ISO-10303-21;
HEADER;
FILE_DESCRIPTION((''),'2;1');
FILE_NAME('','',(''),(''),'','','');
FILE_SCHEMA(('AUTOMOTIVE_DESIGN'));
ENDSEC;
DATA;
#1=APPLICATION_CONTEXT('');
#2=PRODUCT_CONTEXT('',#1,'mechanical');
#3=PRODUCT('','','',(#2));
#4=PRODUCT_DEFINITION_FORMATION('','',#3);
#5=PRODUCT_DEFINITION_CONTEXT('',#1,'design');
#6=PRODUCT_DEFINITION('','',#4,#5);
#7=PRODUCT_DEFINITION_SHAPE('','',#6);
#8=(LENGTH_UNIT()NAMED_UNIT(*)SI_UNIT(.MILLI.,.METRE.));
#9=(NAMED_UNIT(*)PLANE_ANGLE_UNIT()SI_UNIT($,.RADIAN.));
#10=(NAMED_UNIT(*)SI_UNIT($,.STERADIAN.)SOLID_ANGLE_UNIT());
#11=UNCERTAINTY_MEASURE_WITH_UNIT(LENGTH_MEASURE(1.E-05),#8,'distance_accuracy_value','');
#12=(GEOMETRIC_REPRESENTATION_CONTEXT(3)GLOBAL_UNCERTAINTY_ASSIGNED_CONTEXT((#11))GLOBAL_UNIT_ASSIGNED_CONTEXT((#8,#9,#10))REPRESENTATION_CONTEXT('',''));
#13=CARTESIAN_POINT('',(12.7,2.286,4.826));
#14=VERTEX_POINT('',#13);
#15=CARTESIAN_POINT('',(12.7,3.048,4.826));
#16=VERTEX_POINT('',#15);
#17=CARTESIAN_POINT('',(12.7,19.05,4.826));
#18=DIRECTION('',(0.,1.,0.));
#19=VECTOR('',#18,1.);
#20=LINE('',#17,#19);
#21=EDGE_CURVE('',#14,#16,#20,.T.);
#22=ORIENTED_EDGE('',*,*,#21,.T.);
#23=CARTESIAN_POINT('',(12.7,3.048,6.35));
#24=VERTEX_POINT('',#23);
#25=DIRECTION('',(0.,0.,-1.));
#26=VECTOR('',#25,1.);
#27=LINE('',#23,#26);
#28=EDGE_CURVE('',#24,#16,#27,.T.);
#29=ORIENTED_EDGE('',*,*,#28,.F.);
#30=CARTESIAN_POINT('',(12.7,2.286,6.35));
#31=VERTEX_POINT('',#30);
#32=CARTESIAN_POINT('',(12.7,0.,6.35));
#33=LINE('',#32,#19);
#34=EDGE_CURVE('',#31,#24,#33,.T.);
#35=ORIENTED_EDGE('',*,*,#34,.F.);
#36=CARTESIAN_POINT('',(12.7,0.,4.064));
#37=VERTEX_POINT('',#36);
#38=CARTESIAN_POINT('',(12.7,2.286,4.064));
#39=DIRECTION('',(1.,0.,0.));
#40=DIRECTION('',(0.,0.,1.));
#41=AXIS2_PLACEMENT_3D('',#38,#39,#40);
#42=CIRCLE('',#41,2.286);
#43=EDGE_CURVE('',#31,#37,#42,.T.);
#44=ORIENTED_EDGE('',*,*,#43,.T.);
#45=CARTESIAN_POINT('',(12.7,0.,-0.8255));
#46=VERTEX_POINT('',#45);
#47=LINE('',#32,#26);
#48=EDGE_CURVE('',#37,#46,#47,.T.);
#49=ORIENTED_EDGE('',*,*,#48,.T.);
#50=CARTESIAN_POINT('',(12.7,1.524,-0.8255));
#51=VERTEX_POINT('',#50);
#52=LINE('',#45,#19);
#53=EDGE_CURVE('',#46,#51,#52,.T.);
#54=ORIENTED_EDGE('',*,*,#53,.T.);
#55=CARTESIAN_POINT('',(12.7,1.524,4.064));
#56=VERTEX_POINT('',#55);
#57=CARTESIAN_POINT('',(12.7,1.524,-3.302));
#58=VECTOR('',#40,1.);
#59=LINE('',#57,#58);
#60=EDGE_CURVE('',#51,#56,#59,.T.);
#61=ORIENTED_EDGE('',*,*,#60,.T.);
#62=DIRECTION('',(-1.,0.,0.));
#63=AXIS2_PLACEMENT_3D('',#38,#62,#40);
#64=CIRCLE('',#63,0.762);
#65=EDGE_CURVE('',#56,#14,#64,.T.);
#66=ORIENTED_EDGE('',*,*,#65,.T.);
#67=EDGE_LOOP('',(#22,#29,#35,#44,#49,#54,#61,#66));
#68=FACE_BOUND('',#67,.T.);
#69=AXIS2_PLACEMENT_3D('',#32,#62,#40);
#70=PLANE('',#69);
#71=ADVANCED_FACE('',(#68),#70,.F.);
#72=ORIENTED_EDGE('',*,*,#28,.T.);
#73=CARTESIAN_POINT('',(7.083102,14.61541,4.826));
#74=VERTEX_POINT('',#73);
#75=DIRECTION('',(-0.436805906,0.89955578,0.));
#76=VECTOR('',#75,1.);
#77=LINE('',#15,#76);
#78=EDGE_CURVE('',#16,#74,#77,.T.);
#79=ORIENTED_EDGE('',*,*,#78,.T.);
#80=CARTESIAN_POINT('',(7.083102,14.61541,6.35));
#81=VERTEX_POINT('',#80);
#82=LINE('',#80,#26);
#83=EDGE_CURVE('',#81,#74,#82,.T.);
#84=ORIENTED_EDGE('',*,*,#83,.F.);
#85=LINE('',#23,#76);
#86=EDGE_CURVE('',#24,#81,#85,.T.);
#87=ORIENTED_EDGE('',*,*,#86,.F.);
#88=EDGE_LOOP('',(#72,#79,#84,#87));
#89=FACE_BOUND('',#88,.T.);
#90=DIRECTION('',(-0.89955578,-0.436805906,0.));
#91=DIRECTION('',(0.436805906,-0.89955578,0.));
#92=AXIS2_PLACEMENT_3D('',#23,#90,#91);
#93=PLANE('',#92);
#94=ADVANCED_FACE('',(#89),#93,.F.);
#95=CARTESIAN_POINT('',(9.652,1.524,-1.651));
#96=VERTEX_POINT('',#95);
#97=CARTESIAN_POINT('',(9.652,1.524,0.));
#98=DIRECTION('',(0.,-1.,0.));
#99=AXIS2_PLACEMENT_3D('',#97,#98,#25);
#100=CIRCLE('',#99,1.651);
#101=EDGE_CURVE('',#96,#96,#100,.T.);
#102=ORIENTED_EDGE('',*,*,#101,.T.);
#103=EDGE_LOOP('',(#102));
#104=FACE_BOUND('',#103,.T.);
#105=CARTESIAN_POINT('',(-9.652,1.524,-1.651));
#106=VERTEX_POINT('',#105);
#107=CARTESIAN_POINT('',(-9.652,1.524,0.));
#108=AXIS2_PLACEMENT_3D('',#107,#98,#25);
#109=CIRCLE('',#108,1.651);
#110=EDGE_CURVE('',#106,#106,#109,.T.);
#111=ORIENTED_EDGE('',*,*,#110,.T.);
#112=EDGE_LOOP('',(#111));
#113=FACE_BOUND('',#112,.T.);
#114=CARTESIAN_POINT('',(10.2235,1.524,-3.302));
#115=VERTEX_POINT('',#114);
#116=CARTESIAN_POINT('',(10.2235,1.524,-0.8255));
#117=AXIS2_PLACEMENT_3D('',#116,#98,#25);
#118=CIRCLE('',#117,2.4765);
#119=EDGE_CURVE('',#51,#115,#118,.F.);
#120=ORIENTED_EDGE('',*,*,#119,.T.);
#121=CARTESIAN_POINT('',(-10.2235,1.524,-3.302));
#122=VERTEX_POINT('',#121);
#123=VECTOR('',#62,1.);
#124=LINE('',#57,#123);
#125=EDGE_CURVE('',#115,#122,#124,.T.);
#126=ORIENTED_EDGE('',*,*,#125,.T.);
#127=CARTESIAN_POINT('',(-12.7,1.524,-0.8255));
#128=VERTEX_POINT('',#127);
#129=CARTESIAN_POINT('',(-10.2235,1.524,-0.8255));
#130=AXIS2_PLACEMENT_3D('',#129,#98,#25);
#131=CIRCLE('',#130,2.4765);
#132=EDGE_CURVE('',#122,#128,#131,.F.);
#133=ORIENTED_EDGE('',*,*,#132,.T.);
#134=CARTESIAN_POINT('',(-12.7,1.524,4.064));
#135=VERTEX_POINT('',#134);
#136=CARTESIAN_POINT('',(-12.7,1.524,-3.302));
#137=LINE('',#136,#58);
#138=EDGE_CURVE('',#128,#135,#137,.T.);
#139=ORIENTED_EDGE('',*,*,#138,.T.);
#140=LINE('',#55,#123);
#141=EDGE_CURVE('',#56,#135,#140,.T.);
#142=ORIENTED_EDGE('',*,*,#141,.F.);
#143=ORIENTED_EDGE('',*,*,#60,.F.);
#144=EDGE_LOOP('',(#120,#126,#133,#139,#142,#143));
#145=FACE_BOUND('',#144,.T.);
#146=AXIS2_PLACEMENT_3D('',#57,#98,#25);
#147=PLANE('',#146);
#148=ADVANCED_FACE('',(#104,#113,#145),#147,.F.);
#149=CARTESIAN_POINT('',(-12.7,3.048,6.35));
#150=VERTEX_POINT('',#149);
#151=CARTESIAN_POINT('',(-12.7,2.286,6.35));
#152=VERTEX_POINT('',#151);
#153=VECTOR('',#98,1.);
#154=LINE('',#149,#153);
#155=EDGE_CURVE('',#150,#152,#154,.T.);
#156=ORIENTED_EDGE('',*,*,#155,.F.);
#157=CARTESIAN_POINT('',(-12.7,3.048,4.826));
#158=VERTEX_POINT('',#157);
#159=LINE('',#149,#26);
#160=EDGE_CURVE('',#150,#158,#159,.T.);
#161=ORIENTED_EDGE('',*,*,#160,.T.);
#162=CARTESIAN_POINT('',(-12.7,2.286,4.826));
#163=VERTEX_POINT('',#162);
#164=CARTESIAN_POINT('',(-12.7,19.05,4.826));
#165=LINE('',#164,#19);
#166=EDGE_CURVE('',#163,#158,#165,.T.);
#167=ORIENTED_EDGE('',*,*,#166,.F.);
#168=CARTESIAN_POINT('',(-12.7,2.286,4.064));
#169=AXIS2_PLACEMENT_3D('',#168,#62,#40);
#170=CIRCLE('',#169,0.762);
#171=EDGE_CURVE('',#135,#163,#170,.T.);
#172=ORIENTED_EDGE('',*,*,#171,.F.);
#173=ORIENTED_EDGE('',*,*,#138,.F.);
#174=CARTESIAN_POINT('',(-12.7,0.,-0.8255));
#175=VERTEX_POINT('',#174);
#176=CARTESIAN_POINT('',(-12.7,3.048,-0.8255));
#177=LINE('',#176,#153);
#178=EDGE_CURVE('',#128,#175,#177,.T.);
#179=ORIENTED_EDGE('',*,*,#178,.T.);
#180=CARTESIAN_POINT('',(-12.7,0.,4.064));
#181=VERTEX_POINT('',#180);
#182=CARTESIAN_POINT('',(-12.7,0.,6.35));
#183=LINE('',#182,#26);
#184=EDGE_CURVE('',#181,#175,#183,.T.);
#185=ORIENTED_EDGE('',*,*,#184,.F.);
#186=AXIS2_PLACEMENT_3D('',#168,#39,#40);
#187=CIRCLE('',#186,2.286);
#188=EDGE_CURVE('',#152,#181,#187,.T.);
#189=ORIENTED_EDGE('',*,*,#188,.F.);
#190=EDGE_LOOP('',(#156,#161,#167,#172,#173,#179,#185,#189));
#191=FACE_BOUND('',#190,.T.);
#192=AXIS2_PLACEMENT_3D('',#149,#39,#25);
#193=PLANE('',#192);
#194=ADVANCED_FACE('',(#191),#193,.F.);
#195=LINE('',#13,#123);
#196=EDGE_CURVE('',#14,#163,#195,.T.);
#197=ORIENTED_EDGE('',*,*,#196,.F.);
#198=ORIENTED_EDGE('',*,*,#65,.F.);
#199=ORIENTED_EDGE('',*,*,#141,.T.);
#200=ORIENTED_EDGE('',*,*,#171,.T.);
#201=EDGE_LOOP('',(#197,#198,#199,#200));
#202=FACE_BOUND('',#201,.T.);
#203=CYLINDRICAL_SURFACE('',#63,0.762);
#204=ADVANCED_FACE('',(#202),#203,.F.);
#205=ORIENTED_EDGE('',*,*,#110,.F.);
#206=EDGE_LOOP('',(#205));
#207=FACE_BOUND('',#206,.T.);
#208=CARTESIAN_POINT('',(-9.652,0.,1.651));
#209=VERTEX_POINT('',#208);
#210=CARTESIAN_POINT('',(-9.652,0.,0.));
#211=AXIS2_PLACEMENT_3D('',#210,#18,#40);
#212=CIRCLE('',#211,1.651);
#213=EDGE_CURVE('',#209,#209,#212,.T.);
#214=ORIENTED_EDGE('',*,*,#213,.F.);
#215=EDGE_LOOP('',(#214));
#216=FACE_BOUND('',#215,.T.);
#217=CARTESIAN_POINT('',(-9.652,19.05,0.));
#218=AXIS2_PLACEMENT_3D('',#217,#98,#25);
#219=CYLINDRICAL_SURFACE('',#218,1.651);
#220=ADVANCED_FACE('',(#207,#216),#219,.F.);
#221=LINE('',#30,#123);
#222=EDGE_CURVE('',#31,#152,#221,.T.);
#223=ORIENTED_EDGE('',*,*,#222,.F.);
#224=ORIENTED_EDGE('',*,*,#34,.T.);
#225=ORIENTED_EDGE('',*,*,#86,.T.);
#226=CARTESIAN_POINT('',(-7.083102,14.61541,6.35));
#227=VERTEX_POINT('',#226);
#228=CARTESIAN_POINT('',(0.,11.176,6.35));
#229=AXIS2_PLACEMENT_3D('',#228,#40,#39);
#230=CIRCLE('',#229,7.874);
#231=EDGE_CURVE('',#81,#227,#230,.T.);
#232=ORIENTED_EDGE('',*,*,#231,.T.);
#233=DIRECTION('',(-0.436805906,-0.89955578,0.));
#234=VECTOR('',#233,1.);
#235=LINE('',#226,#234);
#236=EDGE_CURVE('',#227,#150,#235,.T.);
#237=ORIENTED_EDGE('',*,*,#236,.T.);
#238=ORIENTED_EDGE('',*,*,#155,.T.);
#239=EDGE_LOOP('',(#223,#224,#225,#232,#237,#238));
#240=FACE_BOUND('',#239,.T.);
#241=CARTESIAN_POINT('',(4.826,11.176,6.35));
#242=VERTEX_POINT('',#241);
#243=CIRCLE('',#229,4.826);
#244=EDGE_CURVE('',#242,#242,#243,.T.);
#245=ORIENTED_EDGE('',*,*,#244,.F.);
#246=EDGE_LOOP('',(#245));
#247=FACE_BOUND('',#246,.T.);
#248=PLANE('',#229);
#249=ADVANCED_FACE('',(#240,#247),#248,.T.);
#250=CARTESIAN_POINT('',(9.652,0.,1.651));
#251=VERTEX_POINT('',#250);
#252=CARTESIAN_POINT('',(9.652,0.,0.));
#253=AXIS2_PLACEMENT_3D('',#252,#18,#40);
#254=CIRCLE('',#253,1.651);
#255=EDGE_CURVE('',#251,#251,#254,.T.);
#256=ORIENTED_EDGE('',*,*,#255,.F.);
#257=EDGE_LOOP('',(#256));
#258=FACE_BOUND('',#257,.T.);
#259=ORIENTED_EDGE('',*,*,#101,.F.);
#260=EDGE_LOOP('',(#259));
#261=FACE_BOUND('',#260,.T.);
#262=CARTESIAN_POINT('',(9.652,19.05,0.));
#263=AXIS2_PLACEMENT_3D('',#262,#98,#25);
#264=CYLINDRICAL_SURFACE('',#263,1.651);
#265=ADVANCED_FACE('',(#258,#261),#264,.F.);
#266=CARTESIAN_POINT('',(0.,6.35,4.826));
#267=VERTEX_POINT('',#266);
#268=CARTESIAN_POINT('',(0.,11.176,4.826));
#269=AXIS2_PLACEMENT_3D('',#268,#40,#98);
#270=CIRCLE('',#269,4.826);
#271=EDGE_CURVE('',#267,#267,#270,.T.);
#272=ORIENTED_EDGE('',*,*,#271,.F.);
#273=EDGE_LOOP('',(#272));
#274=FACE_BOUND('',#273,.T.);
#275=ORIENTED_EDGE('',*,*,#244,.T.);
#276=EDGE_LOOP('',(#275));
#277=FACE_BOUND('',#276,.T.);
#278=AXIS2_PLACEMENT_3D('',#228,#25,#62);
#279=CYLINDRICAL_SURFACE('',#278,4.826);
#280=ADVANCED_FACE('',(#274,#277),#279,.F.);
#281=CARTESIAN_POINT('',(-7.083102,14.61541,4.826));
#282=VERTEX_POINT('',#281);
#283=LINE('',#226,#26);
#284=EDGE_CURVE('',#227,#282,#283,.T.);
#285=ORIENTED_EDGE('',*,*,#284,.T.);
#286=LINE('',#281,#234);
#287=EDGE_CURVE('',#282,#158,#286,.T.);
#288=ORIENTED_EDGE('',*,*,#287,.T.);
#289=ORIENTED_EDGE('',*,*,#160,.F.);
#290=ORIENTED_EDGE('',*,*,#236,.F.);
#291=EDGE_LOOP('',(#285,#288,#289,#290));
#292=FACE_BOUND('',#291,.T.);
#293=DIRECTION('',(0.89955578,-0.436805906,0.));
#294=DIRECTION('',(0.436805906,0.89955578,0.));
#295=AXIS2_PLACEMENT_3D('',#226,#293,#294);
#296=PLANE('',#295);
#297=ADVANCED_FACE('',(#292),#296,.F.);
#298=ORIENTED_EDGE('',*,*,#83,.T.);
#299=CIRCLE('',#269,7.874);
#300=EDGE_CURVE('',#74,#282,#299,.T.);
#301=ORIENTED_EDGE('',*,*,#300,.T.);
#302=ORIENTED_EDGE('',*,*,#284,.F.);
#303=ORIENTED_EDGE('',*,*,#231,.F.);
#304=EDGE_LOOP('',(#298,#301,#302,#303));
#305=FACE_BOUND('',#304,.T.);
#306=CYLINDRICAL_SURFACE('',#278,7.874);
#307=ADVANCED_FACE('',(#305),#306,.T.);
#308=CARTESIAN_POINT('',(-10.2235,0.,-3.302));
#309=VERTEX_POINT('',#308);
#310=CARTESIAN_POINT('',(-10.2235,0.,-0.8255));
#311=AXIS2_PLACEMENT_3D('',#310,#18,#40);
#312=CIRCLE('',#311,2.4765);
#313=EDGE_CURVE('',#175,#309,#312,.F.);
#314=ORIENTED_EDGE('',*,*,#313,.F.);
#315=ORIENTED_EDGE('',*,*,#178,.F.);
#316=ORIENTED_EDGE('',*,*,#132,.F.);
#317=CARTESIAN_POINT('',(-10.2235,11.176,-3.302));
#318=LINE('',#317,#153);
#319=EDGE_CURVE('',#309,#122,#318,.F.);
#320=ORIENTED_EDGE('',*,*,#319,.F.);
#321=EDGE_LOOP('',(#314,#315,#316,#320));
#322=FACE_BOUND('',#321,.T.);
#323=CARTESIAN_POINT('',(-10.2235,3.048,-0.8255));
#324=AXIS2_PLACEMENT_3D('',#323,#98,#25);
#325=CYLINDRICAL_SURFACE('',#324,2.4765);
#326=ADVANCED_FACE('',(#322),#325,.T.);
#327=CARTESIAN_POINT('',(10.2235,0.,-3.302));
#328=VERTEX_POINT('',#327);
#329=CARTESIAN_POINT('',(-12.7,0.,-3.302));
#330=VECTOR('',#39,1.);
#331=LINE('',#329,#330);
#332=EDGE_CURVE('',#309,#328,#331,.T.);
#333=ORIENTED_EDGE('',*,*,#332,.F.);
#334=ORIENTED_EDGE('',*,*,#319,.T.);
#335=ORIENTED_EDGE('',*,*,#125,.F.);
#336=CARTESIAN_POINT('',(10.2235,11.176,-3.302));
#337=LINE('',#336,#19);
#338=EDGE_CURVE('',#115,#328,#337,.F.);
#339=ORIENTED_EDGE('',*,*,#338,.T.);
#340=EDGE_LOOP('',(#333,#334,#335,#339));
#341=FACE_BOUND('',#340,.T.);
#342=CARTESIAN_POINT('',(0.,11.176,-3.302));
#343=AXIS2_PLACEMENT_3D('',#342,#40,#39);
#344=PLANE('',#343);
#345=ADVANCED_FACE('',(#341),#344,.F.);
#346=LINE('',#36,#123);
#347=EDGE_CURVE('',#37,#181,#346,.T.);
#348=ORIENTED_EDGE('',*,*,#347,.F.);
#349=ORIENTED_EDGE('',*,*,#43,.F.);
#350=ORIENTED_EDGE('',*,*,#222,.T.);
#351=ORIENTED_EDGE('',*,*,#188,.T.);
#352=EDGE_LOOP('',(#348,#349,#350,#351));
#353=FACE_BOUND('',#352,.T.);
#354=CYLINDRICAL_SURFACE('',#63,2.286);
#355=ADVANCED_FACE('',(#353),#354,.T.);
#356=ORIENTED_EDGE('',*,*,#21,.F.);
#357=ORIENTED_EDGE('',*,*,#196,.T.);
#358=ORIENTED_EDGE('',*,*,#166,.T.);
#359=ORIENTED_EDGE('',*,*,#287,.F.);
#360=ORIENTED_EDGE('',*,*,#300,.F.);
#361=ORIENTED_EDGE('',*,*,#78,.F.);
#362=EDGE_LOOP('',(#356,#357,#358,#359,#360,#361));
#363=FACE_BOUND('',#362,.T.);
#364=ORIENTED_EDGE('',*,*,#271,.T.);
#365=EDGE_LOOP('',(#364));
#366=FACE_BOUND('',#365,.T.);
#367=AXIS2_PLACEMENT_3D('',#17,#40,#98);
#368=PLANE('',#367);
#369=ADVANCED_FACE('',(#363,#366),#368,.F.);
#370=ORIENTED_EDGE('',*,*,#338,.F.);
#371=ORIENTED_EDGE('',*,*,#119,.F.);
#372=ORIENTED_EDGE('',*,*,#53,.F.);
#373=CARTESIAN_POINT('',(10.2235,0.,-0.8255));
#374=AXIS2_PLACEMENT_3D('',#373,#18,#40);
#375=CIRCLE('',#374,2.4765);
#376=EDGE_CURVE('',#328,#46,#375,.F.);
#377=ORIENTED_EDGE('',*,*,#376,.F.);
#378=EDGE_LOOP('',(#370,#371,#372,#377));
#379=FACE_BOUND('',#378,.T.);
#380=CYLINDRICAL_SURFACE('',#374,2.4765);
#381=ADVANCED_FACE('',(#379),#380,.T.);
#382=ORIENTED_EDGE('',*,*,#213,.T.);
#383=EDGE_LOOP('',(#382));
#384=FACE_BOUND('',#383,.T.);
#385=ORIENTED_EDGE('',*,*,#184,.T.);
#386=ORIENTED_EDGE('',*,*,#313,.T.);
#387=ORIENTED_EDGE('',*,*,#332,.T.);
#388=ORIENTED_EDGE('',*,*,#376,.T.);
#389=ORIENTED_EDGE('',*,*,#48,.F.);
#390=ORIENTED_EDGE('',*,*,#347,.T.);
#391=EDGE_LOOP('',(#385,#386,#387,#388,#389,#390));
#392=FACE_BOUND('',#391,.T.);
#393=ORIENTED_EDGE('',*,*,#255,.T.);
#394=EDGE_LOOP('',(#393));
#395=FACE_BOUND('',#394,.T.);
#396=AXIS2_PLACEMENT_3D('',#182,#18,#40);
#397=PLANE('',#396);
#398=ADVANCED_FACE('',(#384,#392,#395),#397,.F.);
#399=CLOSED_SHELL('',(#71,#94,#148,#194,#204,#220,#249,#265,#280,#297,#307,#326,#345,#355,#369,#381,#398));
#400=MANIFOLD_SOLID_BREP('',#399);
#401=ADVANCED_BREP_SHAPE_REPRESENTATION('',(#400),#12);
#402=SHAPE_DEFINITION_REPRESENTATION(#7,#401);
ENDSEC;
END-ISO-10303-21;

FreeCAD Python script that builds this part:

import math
import FreeCAD as App
import Part
import Sketcher
Q = App.Units.Quantity


def edges_at(feature, points):
    """Names of the edges that pass closest to the given points."""
    edges = feature.Shape.Edges
    near = lambda p: min(range(len(edges)), key=lambda i: edges[i].distToShape(Part.Vertex(*p))[0])
    return sorted({f"Edge{near(p) + 1}" for p in points})

doc = App.newDocument("Part")
params = doc.addObject("Spreadsheet::Sheet", "Params")
for row, (alias, value) in enumerate([
    ("sketch1_diameter", "0.38 in"),
    ("sketch1_width", "1 in"),
    ("sketch1_radius", "0.31 in"),
    ("sketch1_height", "0.12 in"),
    ("pad1_length", "0.25 in"),
    ("pad1_length2", "0.13 in"),
    ("sketch2_diameter", "0.13 in"),
    ("sketch3_radius", "0.03 in"),
    ("sketch3_radius2", "0.09 in"),
    ("sketch3_width", "0.69 in"),
    ("sketch3_height", "0.32 in"),
    ("fillet_radius", "0.0975 in"),
], start=1):
    params.set(f"A{row}", alias)
    params.set(f"B{row}", "=" + value)
    params.setAlias(f"B{row}", alias)

body = doc.addObject("PartDesign::Body", "Body")

# Sketch on XY plane
sketch1 = body.newObject("Sketcher::SketchObject", "Sketch")
sketch1.AttachmentSupport = (doc.getObject("XY_Plane"), [""])
sketch1.MapMode = "FlatFace"
sketch1.addGeometry([
    Part.LineSegment(App.Vector(-12.7, 0, 0), App.Vector(12.7, 0, 0)),  # 0
    Part.LineSegment(App.Vector(12.7, 0, 0), App.Vector(12.7, 3, 0)),  # 1
    Part.LineSegment(App.Vector(12.7, 3, 0), App.Vector(7.1, 14.6, 0)),  # 2
    Part.ArcOfCircle(Part.Circle(App.Vector(0, 11.2, 0), App.Vector(0, 0, 1), 7.9), math.radians(26), math.radians(154)),  # 3
    Part.LineSegment(App.Vector(-7.1, 14.6, 0), App.Vector(-12.7, 3, 0)),  # 4
    Part.LineSegment(App.Vector(-12.7, 3, 0), App.Vector(-12.7, 0, 0)),  # 5
    Part.Circle(App.Vector(0, 11.2, 0), App.Vector(0, 0, 1), 4.8),  # 6
], False)
sketch1.addConstraint([
    Sketcher.Constraint("Coincident", 0, 2, 1, 1),
    Sketcher.Constraint("Coincident", 1, 2, 2, 1),
    Sketcher.Constraint("Tangent", 2, 2, 3, 1),
    Sketcher.Constraint("Tangent", 3, 2, 4, 1),
    Sketcher.Constraint("Coincident", 4, 2, 5, 1),
    Sketcher.Constraint("Coincident", 5, 2, 0, 1),
    Sketcher.Constraint("Horizontal", 0),
    Sketcher.Constraint("Vertical", 1),
    Sketcher.Constraint("Vertical", 5),
    Sketcher.Constraint("Coincident", 6, 3, 3, 3),
    Sketcher.Constraint("Symmetric", 0, 2, 5, 2, -1, 1),
    Sketcher.Constraint("Symmetric", 2, 2, 3, 2, -2),
    Sketcher.Constraint("Diameter", 6, Q("0.38 in")),
    Sketcher.Constraint("DistanceX", 0, 1, 0, 2, Q("1 in")),
    Sketcher.Constraint("Radius", 3, Q("0.31 in")),
    Sketcher.Constraint("DistanceY", 1, 1, 1, 2, Q("0.12 in")),
    Sketcher.Constraint("DistanceY", -1, 1, 3, 3, Q("0.44 in")),
])
sketch1.setExpression("Constraints[12]", "Params.sketch1_diameter")
sketch1.setExpression("Constraints[13]", "Params.sketch1_width")
sketch1.setExpression("Constraints[14]", "Params.sketch1_radius")
sketch1.setExpression("Constraints[15]", "Params.sketch1_height")
pad1 = body.newObject("PartDesign::Pad", "Pad")
pad1.Profile = sketch1
pad1.Type = "TwoLengths"
pad1.setExpression("Length", "Params.pad1_length")
pad1.setExpression("Length2", "Params.pad1_length2")

# Sketch on XZ plane
sketch2 = body.newObject("Sketcher::SketchObject", "Sketch001")
sketch2.AttachmentSupport = (doc.getObject("XZ_Plane"), [""])
sketch2.MapMode = "FlatFace"
sketch2.addGeometry([
    Part.Circle(App.Vector(9.7, 0, 0), App.Vector(0, 0, 1), 1.7),
    Part.Circle(App.Vector(-9.7, 0, 0), App.Vector(0, 0, 1), 1.7),
], False)
sketch2.addConstraint([
    Sketcher.Constraint("Equal", 0, 1),
    Sketcher.Constraint("Symmetric", 0, 3, 1, 3, -1, 1),
    Sketcher.Constraint("PointOnObject", 0, 3, -1),
    Sketcher.Constraint("Diameter", 0, Q("0.13 in")),
    Sketcher.Constraint("DistanceX", -1, 1, 0, 3, Q("0.38 in")),
])
sketch2.setExpression("Constraints[3]", "Params.sketch2_diameter")
pocket1 = body.newObject("PartDesign::Pocket", "Pocket")
pocket1.Profile = sketch2
pocket1.Type = "ThroughAll"

# Sketch on YZ plane
sketch3 = body.newObject("Sketcher::SketchObject", "Sketch002")
sketch3.AttachmentSupport = (doc.getObject("YZ_Plane"), [""])
sketch3.MapMode = "FlatFace"
sketch3.AttachmentOffset = App.Placement(App.Vector(0, 0, -0.5 * 25.4), App.Rotation())
sketch3.addGeometry([
    Part.LineSegment(App.Vector(19.1, 4.8, 0), App.Vector(19.1, -3.3, 0)),  # 0
    Part.LineSegment(App.Vector(19.1, -3.3, 0), App.Vector(1.5, -3.3, 0)),  # 1
    Part.LineSegment(App.Vector(1.5, -3.3, 0), App.Vector(1.5, 4.1, 0)),  # 2
    Part.ArcOfCircle(Part.Circle(App.Vector(2.3, 4.1, 0), App.Vector(0, 0, 1), 0.8), math.radians(90), math.radians(180)),  # 3
    Part.LineSegment(App.Vector(2.3, 4.8, 0), App.Vector(19.1, 4.8, 0)),  # 4
    Part.LineSegment(App.Vector(0, 4.1, 0), App.Vector(0, 6.3, 0)),  # 5
    Part.LineSegment(App.Vector(0, 6.3, 0), App.Vector(2.3, 6.3, 0)),  # 6
    Part.ArcOfCircle(Part.Circle(App.Vector(2.3, 4.1, 0), App.Vector(0, 0, 1), 2.3), math.radians(90), math.radians(180)),  # 7
], False)
sketch3.addConstraint([
    Sketcher.Constraint("Coincident", 0, 2, 1, 1),
    Sketcher.Constraint("Coincident", 1, 2, 2, 1),
    Sketcher.Constraint("Tangent", 2, 2, 3, 2),
    Sketcher.Constraint("Tangent", 3, 1, 4, 1),
    Sketcher.Constraint("Coincident", 4, 2, 0, 1),
    Sketcher.Constraint("Coincident", 5, 2, 6, 1),
    Sketcher.Constraint("Tangent", 6, 2, 7, 1),
    Sketcher.Constraint("Tangent", 7, 2, 5, 1),
    Sketcher.Constraint("Vertical", 0),
    Sketcher.Constraint("Horizontal", 1),
    Sketcher.Constraint("Vertical", 2),
    Sketcher.Constraint("Horizontal", 4),
    Sketcher.Constraint("Vertical", 5),
    Sketcher.Constraint("Horizontal", 6),
    Sketcher.Constraint("Coincident", 7, 3, 3, 3),
    Sketcher.Constraint("PointOnObject", 5, 2, -2),
    Sketcher.Constraint("Radius", 3, Q("0.03 in")),
    Sketcher.Constraint("Radius", 7, Q("0.09 in")),
    Sketcher.Constraint("DistanceX", 1, 2, 1, 1, Q("0.69 in")),
    Sketcher.Constraint("DistanceY", 0, 2, 0, 1, Q("0.32 in")),
    Sketcher.Constraint("DistanceY", -1, 1, 3, 3, Q("0.16 in")),
])
sketch3.setExpression("Constraints[16]", "Params.sketch3_radius")
sketch3.setExpression("Constraints[17]", "Params.sketch3_radius2")
sketch3.setExpression("Constraints[18]", "Params.sketch3_width")
sketch3.setExpression("Constraints[19]", "Params.sketch3_height")
pocket2 = body.newObject("PartDesign::Pocket", "Pocket001")
pocket2.Profile = sketch3
pocket2.Type = "ThroughAll"
pocket2.Reversed = True
doc.recompute()

fillet = body.newObject("PartDesign::Fillet", "Fillet")
fillet.Base = (pocket2, edges_at(pocket2, [(12.7, 0.762, -3.302), (-12.7, 0.762, -3.302)]))
fillet.setExpression("Radius", "Params.fillet_radius")

doc.recompute()
